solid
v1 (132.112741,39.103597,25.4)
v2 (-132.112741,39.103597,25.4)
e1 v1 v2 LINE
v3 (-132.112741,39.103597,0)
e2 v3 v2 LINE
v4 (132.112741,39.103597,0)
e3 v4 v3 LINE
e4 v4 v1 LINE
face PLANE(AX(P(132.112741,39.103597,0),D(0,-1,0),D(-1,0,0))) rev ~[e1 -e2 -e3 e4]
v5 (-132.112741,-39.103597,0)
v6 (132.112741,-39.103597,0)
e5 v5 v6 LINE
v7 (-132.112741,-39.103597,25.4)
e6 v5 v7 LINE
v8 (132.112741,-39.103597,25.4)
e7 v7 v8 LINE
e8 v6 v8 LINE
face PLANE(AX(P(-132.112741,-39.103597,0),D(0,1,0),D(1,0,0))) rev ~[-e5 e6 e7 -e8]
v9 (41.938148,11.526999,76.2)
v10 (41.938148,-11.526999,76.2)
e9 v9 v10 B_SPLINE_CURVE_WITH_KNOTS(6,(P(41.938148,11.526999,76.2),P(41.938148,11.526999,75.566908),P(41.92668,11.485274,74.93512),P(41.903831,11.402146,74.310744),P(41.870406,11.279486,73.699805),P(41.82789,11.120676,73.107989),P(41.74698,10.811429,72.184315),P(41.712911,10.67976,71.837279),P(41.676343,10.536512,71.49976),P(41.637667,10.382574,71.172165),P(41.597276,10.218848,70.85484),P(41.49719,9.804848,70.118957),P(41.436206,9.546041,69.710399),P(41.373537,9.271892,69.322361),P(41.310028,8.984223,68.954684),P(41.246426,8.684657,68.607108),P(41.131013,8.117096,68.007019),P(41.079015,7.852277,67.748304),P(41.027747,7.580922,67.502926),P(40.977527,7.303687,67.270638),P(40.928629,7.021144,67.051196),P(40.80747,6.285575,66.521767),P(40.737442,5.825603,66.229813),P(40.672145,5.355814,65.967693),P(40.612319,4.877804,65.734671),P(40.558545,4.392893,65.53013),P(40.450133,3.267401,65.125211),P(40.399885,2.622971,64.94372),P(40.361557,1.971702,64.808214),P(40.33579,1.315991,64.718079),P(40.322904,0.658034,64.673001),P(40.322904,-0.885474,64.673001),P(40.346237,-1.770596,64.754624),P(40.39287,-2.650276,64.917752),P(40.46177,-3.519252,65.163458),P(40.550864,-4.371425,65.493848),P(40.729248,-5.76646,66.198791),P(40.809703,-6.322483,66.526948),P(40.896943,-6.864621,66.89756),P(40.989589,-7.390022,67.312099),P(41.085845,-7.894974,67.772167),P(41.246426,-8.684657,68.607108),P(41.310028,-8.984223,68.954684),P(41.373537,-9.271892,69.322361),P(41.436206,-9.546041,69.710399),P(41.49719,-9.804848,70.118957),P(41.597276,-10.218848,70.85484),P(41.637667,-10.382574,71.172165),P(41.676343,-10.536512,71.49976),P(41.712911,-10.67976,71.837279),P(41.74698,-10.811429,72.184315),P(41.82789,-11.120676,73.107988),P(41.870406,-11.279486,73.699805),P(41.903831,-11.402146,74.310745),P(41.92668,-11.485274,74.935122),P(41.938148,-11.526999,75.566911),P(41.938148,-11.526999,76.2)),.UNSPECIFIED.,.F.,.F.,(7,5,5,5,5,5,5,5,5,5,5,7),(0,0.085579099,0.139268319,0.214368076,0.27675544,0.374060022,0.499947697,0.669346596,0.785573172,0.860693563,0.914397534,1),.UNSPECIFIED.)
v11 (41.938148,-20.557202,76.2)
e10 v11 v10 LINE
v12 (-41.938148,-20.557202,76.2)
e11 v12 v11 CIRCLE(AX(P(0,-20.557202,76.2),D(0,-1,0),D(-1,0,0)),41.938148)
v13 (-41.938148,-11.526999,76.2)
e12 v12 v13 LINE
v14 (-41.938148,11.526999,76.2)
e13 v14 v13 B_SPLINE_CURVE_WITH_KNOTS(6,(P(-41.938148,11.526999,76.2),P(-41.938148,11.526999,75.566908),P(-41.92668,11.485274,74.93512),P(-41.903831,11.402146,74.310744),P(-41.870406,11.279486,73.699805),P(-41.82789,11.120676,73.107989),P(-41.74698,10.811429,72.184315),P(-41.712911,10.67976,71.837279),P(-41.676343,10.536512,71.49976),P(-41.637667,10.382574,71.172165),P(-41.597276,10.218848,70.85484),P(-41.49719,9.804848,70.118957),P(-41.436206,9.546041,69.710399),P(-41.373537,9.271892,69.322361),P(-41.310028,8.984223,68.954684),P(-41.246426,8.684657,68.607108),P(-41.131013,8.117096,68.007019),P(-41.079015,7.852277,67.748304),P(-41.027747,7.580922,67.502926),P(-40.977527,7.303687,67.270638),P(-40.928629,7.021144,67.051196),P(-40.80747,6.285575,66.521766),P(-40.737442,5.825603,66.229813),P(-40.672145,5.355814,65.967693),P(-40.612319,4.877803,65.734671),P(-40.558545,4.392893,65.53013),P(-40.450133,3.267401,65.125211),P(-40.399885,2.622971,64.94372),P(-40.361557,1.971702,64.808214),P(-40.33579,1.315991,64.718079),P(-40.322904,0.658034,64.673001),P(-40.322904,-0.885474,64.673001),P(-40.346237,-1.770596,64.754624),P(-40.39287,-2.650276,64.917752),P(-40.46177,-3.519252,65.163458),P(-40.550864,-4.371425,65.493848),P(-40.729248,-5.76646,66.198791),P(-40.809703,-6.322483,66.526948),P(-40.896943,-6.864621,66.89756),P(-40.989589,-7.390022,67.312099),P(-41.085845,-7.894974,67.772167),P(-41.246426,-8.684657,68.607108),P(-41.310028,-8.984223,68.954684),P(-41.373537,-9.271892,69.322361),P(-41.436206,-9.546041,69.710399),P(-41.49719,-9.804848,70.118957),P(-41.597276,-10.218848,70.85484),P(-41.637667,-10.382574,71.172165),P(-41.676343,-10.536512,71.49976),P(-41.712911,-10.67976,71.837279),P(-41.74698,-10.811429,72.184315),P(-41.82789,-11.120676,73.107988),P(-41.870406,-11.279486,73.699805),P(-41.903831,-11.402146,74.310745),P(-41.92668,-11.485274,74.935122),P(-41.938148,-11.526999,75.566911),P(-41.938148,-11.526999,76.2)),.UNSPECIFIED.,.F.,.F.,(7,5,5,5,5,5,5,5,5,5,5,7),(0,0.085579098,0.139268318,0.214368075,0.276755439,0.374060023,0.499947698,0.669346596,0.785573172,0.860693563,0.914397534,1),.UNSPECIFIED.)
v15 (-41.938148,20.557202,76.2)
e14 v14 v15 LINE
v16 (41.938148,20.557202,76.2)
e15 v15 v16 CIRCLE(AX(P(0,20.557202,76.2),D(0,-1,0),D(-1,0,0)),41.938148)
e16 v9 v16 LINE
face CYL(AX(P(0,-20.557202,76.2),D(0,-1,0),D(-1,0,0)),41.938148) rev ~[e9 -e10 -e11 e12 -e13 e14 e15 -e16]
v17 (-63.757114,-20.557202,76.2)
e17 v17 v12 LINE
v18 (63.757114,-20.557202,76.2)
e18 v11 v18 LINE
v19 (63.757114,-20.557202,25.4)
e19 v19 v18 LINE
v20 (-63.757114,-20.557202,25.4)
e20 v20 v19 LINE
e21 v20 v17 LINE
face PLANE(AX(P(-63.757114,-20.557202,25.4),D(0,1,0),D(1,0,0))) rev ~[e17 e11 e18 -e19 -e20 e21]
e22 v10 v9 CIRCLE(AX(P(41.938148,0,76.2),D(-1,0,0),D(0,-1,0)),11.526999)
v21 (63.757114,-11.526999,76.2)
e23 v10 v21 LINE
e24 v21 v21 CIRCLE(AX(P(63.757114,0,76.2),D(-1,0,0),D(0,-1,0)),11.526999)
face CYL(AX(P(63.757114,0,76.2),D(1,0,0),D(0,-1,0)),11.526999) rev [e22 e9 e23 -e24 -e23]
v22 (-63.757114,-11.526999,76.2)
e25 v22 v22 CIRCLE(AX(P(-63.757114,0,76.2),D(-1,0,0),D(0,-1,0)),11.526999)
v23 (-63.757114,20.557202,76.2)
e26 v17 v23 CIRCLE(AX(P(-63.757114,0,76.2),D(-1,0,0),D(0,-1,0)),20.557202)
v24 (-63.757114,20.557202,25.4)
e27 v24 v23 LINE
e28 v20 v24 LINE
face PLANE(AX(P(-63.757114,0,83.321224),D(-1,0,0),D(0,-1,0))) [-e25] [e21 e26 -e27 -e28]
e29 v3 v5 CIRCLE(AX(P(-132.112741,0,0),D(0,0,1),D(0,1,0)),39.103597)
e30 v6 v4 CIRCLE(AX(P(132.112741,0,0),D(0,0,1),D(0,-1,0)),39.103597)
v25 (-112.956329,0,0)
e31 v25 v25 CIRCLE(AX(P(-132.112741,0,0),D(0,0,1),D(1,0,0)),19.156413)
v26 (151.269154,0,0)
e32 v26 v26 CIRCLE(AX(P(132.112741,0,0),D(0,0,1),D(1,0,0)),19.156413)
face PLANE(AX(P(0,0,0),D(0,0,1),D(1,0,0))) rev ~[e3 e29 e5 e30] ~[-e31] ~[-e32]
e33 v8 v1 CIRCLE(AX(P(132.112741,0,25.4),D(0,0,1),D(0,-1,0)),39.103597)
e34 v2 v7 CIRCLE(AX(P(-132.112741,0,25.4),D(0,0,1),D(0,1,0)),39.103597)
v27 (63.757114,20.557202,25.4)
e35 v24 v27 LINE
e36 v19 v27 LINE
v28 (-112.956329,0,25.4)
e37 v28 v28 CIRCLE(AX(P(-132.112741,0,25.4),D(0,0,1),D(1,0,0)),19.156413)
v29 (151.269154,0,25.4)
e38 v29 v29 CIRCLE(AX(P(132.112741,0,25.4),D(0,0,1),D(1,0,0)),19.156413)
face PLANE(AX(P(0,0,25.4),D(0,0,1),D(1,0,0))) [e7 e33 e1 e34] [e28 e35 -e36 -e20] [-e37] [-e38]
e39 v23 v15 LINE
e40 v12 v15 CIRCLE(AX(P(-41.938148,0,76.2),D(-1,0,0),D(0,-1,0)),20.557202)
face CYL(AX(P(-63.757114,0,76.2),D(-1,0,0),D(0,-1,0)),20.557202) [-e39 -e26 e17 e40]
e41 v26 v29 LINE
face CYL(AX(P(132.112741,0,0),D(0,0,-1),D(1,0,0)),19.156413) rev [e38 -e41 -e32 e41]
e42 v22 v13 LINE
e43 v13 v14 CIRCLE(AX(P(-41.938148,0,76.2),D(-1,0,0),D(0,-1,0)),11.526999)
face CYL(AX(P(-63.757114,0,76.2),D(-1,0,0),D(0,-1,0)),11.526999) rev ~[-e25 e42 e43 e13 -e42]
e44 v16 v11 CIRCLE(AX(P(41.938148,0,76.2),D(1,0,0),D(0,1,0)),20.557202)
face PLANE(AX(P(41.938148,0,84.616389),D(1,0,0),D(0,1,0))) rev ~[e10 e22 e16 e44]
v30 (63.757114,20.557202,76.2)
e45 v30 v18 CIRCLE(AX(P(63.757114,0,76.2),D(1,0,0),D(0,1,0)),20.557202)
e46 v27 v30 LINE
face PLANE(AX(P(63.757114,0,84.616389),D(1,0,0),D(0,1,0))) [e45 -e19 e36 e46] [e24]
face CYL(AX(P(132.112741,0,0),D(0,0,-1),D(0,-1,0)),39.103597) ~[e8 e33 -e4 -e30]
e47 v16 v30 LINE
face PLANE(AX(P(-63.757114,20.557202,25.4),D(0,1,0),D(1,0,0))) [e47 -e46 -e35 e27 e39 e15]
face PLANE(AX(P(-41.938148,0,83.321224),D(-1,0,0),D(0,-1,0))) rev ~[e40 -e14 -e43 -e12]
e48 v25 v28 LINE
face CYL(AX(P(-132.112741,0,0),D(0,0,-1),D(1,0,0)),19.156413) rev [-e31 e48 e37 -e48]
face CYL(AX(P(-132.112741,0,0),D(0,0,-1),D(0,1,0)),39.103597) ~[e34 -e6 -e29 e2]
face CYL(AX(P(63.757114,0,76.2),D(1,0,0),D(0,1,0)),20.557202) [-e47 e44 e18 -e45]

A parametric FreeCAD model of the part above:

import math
import FreeCAD as App
import Part
import Sketcher

V = App.Vector
Q = App.Units.Quantity

doc = App.newDocument("Part")
body = doc.addObject("PartDesign::Body", "Body")

# Sketch on XY plane
sketch1 = doc.addObject("Sketcher::SketchObject", "Sketch")
body.addObject(sketch1)
sketch1.AttachmentSupport = (doc.XY_Plane, [""])
sketch1.MapMode = "FlatFace"
sketch1.addGeometry(Part.ArcOfCircle(Part.Circle(V(132, 0, 0), V(0, 0, 1), 39), math.radians(-90), math.radians(90)), False)
sketch1.addGeometry(Part.LineSegment(V(132, 39, 0), V(-132, 39, 0)), False)
sketch1.addGeometry(Part.ArcOfCircle(Part.Circle(V(-132, 0, 0), V(0, 0, 1), 39), math.radians(90), math.radians(270)), False)
sketch1.addGeometry(Part.LineSegment(V(-132, -39, 0), V(132, -39, 0)), False)
sketch1.addGeometry(Part.Circle(V(-132, 0, 0), V(0, 0, 1), 19), False)
sketch1.addGeometry(Part.Circle(V(132, 0, 0), V(0, 0, 1), 19), False)
sketch1.addConstraint(Sketcher.Constraint("Tangent", 0, 2, 1, 1))
sketch1.addConstraint(Sketcher.Constraint("Tangent", 1, 2, 2, 1))
sketch1.addConstraint(Sketcher.Constraint("Tangent", 2, 2, 3, 1))
sketch1.addConstraint(Sketcher.Constraint("Tangent", 3, 2, 0, 1))
sketch1.addConstraint(Sketcher.Constraint("Horizontal", 1))
sketch1.addConstraint(Sketcher.Constraint("Horizontal", 3))
sketch1.addConstraint(Sketcher.Constraint("Coincident", 4, 3, 2, 3))
sketch1.addConstraint(Sketcher.Constraint("Coincident", 5, 3, 0, 3))
sketch1.addConstraint(Sketcher.Constraint("Equal", 4, 5))
sketch1.addConstraint(Sketcher.Constraint("Symmetric", 0, 3, 2, 3, -1, 1))
sketch1.addConstraint(Sketcher.Constraint("Diameter", 4, 38.312826))
sketch1.addConstraint(Sketcher.Constraint("Radius", 0, 39.103597))
sketch1.addConstraint(Sketcher.Constraint("DistanceX", 1, 2, 1, 1, 264.225483))
pad1 = doc.addObject("PartDesign::Pad", "Pad")
body.addObject(pad1)
pad1.Profile = sketch1
pad1.Length = Q("1 in")

# Sketch on XY plane
sketch2 = doc.addObject("Sketcher::SketchObject", "Sketch001")
body.addObject(sketch2)
sketch2.AttachmentSupport = (doc.XY_Plane, [""])
sketch2.MapMode = "FlatFace"
sketch2.AttachmentOffset = App.Placement(V(0, 0, 1 * 25.4), App.Rotation())
sketch2.addGeometry(Part.LineSegment(V(-64, 21, 0), V(-64, -21, 0)), False)
sketch2.addGeometry(Part.LineSegment(V(-64, -21, 0), V(64, -21, 0)), False)
sketch2.addGeometry(Part.LineSegment(V(64, -21, 0), V(64, 21, 0)), False)
sketch2.addGeometry(Part.LineSegment(V(64, 21, 0), V(-64, 21, 0)), False)
sketch2.addConstraint(Sketcher.Constraint("Coincident", 0, 2, 1, 1))
sketch2.addConstraint(Sketcher.Constraint("Coincident", 1, 2, 2, 1))
sketch2.addConstraint(Sketcher.Constraint("Coincident", 2, 2, 3, 1))
sketch2.addConstraint(Sketcher.Constraint("Coincident", 3, 2, 0, 1))
sketch2.addConstraint(Sketcher.Constraint("Vertical", 0))
sketch2.addConstraint(Sketcher.Constraint("Horizontal", 1))
sketch2.addConstraint(Sketcher.Constraint("Vertical", 2))
sketch2.addConstraint(Sketcher.Constraint("Horizontal", 3))
sketch2.addConstraint(Sketcher.Constraint("Symmetric", 0, 2, 2, 2, -1, 1))
sketch2.addConstraint(Sketcher.Constraint("DistanceX", 1, 1, 1, 2, 127.514228))
sketch2.addConstraint(Sketcher.Constraint("DistanceY", 0, 2, 0, 1, 41.114405))
pad2 = doc.addObject("PartDesign::Pad", "Pad001")
body.addObject(pad2)
pad2.Profile = sketch2
pad2.Length = Q("2 in")

# Sketch on XZ plane
sketch3 = doc.addObject("Sketcher::SketchObject", "Sketch002")
body.addObject(sketch3)
sketch3.AttachmentSupport = (doc.XZ_Plane, [""])
sketch3.MapMode = "FlatFace"
sketch3.AttachmentOffset = App.Placement(V(0, 0, 20.557202), App.Rotation())
sketch3.addGeometry(Part.ArcOfCircle(Part.Circle(V(0, 76, 0), V(0, 0, 1), 42), math.radians(180), math.radians(360)), False)
sketch3.addGeometry(Part.LineSegment(V(42, 76, 0), V(-42, 76, 0)), False)
sketch3.addConstraint(Sketcher.Constraint("Coincident", 0, 1, 1, 2))
sketch3.addConstraint(Sketcher.Constraint("Coincident", 1, 1, 0, 2))
sketch3.addConstraint(Sketcher.Constraint("Horizontal", 1))
sketch3.addConstraint(Sketcher.Constraint("PointOnObject", 0, 3, -2))
sketch3.addConstraint(Sketcher.Constraint("DistanceY", -1, 1, 0, 3, Q("3 in")))
sketch3.addConstraint(Sketcher.Constraint("DistanceY", -1, 1, 0, 1, Q("3 in")))
sketch3.addConstraint(Sketcher.Constraint("Radius", 0, 41.938148))
pocket1 = doc.addObject("PartDesign::Pocket", "Pocket")
body.addObject(pocket1)
pocket1.Profile = sketch3
pocket1.Type = "ThroughAll"

# Sketch on YZ plane
sketch4 = doc.addObject("Sketcher::SketchObject", "Sketch003")
body.addObject(sketch4)
sketch4.AttachmentSupport = (doc.YZ_Plane, [""])
sketch4.MapMode = "FlatFace"
sketch4.AttachmentOffset = App.Placement(V(0, 0, -63.757114), App.Rotation())
sketch4.addGeometry(Part.LineSegment(V(21, 76, 0), V(-21, 76, 0)), False)
sketch4.addGeometry(Part.ArcOfCircle(Part.Circle(V(0, 76, 0), V(0, 0, 1), 21), math.radians(0), math.radians(180)), False)
sketch4.addConstraint(Sketcher.Constraint("Coincident", 0, 1, 1, 1))
sketch4.addConstraint(Sketcher.Constraint("Coincident", 1, 2, 0, 2))
sketch4.addConstraint(Sketcher.Constraint("Horizontal", 0))
sketch4.addConstraint(Sketcher.Constraint("PointOnObject", 1, 3, -2))
sketch4.addConstraint(Sketcher.Constraint("Horizontal", 1, 3, 0, 1))
sketch4.addConstraint(Sketcher.Constraint("DistanceY", -1, 1, 1, 3, Q("3 in")))
sketch4.addConstraint(Sketcher.Constraint("Radius", 1, 20.557202))
pad3 = doc.addObject("PartDesign::Pad", "Pad002")
body.addObject(pad3)
pad3.Profile = sketch4
pad3.Length = 21.818966

# Sketch on YZ plane
sketch5 = doc.addObject("Sketcher::SketchObject", "Sketch004")
body.addObject(sketch5)
sketch5.AttachmentSupport = (doc.YZ_Plane, [""])
sketch5.MapMode = "FlatFace"
sketch5.AttachmentOffset = App.Placement(V(0, 0, -63.757114), App.Rotation())
sketch5.addGeometry(Part.Circle(V(0, 76, 0), V(0, 0, 1), 12), False)
sketch5.addConstraint(Sketcher.Constraint("PointOnObject", 0, 3, -2))
sketch5.addConstraint(Sketcher.Constraint("DistanceY", -1, 1, 0, 3, Q("3 in")))
sketch5.addConstraint(Sketcher.Constraint("Diameter", 0, 23.053998))
pocket2 = doc.addObject("PartDesign::Pocket", "Pocket001")
body.addObject(pocket2)
pocket2.Profile = sketch5
pocket2.Type = "ThroughAll"
pocket2.Reversed = True

# Sketch on YZ plane
sketch6 = doc.addObject("Sketcher::SketchObject", "Sketch005")
body.addObject(sketch6)
sketch6.AttachmentSupport = (doc.YZ_Plane, [""])
sketch6.MapMode = "FlatFace"
sketch6.AttachmentOffset = App.Placement(V(0, 0, 63.757114), App.Rotation())
sketch6.addGeometry(Part.ArcOfCircle(Part.Circle(V(0, 76, 0), V(0, 0, 1), 21), math.radians(0), math.radians(180)), False)
sketch6.addGeometry(Part.LineSegment(V(-21, 76, 0), V(-12, 76, 0)), False)
sketch6.addGeometry(Part.ArcOfCircle(Part.Circle(V(0, 76, 0), V(0, 0, 1), 12), math.radians(0), math.radians(180)), False)
sketch6.addGeometry(Part.LineSegment(V(12, 76, 0), V(21, 76, 0)), False)
sketch6.addConstraint(Sketcher.Constraint("Coincident", 0, 2, 1, 1))
sketch6.addConstraint(Sketcher.Constraint("Coincident", 1, 2, 2, 2))
sketch6.addConstraint(Sketcher.Constraint("Coincident", 2, 1, 3, 1))
sketch6.addConstraint(Sketcher.Constraint("Coincident", 3, 2, 0, 1))
sketch6.addConstraint(Sketcher.Constraint("Horizontal", 1))
sketch6.addConstraint(Sketcher.Constraint("Horizontal", 3))
sketch6.addConstraint(Sketcher.Constraint("Coincident", 2, 3, 0, 3))
sketch6.addConstraint(Sketcher.Constraint("Symmetric", 1, 2, 2, 1, -2))
sketch6.addConstraint(Sketcher.Constraint("Horizontal", 2, 3, 0, 2))
sketch6.addConstraint(Sketcher.Constraint("DistanceY", -1, 1, 0, 3, Q("3 in")))
sketch6.addConstraint(Sketcher.Constraint("Radius", 2, 11.526999))
sketch6.addConstraint(Sketcher.Constraint("Radius", 0, 20.557202))
pad4 = doc.addObject("PartDesign::Pad", "Pad003")
body.addObject(pad4)
pad4.Profile = sketch6
pad4.Length = 21.818966
pad4.Reversed = True

doc.recompute()
